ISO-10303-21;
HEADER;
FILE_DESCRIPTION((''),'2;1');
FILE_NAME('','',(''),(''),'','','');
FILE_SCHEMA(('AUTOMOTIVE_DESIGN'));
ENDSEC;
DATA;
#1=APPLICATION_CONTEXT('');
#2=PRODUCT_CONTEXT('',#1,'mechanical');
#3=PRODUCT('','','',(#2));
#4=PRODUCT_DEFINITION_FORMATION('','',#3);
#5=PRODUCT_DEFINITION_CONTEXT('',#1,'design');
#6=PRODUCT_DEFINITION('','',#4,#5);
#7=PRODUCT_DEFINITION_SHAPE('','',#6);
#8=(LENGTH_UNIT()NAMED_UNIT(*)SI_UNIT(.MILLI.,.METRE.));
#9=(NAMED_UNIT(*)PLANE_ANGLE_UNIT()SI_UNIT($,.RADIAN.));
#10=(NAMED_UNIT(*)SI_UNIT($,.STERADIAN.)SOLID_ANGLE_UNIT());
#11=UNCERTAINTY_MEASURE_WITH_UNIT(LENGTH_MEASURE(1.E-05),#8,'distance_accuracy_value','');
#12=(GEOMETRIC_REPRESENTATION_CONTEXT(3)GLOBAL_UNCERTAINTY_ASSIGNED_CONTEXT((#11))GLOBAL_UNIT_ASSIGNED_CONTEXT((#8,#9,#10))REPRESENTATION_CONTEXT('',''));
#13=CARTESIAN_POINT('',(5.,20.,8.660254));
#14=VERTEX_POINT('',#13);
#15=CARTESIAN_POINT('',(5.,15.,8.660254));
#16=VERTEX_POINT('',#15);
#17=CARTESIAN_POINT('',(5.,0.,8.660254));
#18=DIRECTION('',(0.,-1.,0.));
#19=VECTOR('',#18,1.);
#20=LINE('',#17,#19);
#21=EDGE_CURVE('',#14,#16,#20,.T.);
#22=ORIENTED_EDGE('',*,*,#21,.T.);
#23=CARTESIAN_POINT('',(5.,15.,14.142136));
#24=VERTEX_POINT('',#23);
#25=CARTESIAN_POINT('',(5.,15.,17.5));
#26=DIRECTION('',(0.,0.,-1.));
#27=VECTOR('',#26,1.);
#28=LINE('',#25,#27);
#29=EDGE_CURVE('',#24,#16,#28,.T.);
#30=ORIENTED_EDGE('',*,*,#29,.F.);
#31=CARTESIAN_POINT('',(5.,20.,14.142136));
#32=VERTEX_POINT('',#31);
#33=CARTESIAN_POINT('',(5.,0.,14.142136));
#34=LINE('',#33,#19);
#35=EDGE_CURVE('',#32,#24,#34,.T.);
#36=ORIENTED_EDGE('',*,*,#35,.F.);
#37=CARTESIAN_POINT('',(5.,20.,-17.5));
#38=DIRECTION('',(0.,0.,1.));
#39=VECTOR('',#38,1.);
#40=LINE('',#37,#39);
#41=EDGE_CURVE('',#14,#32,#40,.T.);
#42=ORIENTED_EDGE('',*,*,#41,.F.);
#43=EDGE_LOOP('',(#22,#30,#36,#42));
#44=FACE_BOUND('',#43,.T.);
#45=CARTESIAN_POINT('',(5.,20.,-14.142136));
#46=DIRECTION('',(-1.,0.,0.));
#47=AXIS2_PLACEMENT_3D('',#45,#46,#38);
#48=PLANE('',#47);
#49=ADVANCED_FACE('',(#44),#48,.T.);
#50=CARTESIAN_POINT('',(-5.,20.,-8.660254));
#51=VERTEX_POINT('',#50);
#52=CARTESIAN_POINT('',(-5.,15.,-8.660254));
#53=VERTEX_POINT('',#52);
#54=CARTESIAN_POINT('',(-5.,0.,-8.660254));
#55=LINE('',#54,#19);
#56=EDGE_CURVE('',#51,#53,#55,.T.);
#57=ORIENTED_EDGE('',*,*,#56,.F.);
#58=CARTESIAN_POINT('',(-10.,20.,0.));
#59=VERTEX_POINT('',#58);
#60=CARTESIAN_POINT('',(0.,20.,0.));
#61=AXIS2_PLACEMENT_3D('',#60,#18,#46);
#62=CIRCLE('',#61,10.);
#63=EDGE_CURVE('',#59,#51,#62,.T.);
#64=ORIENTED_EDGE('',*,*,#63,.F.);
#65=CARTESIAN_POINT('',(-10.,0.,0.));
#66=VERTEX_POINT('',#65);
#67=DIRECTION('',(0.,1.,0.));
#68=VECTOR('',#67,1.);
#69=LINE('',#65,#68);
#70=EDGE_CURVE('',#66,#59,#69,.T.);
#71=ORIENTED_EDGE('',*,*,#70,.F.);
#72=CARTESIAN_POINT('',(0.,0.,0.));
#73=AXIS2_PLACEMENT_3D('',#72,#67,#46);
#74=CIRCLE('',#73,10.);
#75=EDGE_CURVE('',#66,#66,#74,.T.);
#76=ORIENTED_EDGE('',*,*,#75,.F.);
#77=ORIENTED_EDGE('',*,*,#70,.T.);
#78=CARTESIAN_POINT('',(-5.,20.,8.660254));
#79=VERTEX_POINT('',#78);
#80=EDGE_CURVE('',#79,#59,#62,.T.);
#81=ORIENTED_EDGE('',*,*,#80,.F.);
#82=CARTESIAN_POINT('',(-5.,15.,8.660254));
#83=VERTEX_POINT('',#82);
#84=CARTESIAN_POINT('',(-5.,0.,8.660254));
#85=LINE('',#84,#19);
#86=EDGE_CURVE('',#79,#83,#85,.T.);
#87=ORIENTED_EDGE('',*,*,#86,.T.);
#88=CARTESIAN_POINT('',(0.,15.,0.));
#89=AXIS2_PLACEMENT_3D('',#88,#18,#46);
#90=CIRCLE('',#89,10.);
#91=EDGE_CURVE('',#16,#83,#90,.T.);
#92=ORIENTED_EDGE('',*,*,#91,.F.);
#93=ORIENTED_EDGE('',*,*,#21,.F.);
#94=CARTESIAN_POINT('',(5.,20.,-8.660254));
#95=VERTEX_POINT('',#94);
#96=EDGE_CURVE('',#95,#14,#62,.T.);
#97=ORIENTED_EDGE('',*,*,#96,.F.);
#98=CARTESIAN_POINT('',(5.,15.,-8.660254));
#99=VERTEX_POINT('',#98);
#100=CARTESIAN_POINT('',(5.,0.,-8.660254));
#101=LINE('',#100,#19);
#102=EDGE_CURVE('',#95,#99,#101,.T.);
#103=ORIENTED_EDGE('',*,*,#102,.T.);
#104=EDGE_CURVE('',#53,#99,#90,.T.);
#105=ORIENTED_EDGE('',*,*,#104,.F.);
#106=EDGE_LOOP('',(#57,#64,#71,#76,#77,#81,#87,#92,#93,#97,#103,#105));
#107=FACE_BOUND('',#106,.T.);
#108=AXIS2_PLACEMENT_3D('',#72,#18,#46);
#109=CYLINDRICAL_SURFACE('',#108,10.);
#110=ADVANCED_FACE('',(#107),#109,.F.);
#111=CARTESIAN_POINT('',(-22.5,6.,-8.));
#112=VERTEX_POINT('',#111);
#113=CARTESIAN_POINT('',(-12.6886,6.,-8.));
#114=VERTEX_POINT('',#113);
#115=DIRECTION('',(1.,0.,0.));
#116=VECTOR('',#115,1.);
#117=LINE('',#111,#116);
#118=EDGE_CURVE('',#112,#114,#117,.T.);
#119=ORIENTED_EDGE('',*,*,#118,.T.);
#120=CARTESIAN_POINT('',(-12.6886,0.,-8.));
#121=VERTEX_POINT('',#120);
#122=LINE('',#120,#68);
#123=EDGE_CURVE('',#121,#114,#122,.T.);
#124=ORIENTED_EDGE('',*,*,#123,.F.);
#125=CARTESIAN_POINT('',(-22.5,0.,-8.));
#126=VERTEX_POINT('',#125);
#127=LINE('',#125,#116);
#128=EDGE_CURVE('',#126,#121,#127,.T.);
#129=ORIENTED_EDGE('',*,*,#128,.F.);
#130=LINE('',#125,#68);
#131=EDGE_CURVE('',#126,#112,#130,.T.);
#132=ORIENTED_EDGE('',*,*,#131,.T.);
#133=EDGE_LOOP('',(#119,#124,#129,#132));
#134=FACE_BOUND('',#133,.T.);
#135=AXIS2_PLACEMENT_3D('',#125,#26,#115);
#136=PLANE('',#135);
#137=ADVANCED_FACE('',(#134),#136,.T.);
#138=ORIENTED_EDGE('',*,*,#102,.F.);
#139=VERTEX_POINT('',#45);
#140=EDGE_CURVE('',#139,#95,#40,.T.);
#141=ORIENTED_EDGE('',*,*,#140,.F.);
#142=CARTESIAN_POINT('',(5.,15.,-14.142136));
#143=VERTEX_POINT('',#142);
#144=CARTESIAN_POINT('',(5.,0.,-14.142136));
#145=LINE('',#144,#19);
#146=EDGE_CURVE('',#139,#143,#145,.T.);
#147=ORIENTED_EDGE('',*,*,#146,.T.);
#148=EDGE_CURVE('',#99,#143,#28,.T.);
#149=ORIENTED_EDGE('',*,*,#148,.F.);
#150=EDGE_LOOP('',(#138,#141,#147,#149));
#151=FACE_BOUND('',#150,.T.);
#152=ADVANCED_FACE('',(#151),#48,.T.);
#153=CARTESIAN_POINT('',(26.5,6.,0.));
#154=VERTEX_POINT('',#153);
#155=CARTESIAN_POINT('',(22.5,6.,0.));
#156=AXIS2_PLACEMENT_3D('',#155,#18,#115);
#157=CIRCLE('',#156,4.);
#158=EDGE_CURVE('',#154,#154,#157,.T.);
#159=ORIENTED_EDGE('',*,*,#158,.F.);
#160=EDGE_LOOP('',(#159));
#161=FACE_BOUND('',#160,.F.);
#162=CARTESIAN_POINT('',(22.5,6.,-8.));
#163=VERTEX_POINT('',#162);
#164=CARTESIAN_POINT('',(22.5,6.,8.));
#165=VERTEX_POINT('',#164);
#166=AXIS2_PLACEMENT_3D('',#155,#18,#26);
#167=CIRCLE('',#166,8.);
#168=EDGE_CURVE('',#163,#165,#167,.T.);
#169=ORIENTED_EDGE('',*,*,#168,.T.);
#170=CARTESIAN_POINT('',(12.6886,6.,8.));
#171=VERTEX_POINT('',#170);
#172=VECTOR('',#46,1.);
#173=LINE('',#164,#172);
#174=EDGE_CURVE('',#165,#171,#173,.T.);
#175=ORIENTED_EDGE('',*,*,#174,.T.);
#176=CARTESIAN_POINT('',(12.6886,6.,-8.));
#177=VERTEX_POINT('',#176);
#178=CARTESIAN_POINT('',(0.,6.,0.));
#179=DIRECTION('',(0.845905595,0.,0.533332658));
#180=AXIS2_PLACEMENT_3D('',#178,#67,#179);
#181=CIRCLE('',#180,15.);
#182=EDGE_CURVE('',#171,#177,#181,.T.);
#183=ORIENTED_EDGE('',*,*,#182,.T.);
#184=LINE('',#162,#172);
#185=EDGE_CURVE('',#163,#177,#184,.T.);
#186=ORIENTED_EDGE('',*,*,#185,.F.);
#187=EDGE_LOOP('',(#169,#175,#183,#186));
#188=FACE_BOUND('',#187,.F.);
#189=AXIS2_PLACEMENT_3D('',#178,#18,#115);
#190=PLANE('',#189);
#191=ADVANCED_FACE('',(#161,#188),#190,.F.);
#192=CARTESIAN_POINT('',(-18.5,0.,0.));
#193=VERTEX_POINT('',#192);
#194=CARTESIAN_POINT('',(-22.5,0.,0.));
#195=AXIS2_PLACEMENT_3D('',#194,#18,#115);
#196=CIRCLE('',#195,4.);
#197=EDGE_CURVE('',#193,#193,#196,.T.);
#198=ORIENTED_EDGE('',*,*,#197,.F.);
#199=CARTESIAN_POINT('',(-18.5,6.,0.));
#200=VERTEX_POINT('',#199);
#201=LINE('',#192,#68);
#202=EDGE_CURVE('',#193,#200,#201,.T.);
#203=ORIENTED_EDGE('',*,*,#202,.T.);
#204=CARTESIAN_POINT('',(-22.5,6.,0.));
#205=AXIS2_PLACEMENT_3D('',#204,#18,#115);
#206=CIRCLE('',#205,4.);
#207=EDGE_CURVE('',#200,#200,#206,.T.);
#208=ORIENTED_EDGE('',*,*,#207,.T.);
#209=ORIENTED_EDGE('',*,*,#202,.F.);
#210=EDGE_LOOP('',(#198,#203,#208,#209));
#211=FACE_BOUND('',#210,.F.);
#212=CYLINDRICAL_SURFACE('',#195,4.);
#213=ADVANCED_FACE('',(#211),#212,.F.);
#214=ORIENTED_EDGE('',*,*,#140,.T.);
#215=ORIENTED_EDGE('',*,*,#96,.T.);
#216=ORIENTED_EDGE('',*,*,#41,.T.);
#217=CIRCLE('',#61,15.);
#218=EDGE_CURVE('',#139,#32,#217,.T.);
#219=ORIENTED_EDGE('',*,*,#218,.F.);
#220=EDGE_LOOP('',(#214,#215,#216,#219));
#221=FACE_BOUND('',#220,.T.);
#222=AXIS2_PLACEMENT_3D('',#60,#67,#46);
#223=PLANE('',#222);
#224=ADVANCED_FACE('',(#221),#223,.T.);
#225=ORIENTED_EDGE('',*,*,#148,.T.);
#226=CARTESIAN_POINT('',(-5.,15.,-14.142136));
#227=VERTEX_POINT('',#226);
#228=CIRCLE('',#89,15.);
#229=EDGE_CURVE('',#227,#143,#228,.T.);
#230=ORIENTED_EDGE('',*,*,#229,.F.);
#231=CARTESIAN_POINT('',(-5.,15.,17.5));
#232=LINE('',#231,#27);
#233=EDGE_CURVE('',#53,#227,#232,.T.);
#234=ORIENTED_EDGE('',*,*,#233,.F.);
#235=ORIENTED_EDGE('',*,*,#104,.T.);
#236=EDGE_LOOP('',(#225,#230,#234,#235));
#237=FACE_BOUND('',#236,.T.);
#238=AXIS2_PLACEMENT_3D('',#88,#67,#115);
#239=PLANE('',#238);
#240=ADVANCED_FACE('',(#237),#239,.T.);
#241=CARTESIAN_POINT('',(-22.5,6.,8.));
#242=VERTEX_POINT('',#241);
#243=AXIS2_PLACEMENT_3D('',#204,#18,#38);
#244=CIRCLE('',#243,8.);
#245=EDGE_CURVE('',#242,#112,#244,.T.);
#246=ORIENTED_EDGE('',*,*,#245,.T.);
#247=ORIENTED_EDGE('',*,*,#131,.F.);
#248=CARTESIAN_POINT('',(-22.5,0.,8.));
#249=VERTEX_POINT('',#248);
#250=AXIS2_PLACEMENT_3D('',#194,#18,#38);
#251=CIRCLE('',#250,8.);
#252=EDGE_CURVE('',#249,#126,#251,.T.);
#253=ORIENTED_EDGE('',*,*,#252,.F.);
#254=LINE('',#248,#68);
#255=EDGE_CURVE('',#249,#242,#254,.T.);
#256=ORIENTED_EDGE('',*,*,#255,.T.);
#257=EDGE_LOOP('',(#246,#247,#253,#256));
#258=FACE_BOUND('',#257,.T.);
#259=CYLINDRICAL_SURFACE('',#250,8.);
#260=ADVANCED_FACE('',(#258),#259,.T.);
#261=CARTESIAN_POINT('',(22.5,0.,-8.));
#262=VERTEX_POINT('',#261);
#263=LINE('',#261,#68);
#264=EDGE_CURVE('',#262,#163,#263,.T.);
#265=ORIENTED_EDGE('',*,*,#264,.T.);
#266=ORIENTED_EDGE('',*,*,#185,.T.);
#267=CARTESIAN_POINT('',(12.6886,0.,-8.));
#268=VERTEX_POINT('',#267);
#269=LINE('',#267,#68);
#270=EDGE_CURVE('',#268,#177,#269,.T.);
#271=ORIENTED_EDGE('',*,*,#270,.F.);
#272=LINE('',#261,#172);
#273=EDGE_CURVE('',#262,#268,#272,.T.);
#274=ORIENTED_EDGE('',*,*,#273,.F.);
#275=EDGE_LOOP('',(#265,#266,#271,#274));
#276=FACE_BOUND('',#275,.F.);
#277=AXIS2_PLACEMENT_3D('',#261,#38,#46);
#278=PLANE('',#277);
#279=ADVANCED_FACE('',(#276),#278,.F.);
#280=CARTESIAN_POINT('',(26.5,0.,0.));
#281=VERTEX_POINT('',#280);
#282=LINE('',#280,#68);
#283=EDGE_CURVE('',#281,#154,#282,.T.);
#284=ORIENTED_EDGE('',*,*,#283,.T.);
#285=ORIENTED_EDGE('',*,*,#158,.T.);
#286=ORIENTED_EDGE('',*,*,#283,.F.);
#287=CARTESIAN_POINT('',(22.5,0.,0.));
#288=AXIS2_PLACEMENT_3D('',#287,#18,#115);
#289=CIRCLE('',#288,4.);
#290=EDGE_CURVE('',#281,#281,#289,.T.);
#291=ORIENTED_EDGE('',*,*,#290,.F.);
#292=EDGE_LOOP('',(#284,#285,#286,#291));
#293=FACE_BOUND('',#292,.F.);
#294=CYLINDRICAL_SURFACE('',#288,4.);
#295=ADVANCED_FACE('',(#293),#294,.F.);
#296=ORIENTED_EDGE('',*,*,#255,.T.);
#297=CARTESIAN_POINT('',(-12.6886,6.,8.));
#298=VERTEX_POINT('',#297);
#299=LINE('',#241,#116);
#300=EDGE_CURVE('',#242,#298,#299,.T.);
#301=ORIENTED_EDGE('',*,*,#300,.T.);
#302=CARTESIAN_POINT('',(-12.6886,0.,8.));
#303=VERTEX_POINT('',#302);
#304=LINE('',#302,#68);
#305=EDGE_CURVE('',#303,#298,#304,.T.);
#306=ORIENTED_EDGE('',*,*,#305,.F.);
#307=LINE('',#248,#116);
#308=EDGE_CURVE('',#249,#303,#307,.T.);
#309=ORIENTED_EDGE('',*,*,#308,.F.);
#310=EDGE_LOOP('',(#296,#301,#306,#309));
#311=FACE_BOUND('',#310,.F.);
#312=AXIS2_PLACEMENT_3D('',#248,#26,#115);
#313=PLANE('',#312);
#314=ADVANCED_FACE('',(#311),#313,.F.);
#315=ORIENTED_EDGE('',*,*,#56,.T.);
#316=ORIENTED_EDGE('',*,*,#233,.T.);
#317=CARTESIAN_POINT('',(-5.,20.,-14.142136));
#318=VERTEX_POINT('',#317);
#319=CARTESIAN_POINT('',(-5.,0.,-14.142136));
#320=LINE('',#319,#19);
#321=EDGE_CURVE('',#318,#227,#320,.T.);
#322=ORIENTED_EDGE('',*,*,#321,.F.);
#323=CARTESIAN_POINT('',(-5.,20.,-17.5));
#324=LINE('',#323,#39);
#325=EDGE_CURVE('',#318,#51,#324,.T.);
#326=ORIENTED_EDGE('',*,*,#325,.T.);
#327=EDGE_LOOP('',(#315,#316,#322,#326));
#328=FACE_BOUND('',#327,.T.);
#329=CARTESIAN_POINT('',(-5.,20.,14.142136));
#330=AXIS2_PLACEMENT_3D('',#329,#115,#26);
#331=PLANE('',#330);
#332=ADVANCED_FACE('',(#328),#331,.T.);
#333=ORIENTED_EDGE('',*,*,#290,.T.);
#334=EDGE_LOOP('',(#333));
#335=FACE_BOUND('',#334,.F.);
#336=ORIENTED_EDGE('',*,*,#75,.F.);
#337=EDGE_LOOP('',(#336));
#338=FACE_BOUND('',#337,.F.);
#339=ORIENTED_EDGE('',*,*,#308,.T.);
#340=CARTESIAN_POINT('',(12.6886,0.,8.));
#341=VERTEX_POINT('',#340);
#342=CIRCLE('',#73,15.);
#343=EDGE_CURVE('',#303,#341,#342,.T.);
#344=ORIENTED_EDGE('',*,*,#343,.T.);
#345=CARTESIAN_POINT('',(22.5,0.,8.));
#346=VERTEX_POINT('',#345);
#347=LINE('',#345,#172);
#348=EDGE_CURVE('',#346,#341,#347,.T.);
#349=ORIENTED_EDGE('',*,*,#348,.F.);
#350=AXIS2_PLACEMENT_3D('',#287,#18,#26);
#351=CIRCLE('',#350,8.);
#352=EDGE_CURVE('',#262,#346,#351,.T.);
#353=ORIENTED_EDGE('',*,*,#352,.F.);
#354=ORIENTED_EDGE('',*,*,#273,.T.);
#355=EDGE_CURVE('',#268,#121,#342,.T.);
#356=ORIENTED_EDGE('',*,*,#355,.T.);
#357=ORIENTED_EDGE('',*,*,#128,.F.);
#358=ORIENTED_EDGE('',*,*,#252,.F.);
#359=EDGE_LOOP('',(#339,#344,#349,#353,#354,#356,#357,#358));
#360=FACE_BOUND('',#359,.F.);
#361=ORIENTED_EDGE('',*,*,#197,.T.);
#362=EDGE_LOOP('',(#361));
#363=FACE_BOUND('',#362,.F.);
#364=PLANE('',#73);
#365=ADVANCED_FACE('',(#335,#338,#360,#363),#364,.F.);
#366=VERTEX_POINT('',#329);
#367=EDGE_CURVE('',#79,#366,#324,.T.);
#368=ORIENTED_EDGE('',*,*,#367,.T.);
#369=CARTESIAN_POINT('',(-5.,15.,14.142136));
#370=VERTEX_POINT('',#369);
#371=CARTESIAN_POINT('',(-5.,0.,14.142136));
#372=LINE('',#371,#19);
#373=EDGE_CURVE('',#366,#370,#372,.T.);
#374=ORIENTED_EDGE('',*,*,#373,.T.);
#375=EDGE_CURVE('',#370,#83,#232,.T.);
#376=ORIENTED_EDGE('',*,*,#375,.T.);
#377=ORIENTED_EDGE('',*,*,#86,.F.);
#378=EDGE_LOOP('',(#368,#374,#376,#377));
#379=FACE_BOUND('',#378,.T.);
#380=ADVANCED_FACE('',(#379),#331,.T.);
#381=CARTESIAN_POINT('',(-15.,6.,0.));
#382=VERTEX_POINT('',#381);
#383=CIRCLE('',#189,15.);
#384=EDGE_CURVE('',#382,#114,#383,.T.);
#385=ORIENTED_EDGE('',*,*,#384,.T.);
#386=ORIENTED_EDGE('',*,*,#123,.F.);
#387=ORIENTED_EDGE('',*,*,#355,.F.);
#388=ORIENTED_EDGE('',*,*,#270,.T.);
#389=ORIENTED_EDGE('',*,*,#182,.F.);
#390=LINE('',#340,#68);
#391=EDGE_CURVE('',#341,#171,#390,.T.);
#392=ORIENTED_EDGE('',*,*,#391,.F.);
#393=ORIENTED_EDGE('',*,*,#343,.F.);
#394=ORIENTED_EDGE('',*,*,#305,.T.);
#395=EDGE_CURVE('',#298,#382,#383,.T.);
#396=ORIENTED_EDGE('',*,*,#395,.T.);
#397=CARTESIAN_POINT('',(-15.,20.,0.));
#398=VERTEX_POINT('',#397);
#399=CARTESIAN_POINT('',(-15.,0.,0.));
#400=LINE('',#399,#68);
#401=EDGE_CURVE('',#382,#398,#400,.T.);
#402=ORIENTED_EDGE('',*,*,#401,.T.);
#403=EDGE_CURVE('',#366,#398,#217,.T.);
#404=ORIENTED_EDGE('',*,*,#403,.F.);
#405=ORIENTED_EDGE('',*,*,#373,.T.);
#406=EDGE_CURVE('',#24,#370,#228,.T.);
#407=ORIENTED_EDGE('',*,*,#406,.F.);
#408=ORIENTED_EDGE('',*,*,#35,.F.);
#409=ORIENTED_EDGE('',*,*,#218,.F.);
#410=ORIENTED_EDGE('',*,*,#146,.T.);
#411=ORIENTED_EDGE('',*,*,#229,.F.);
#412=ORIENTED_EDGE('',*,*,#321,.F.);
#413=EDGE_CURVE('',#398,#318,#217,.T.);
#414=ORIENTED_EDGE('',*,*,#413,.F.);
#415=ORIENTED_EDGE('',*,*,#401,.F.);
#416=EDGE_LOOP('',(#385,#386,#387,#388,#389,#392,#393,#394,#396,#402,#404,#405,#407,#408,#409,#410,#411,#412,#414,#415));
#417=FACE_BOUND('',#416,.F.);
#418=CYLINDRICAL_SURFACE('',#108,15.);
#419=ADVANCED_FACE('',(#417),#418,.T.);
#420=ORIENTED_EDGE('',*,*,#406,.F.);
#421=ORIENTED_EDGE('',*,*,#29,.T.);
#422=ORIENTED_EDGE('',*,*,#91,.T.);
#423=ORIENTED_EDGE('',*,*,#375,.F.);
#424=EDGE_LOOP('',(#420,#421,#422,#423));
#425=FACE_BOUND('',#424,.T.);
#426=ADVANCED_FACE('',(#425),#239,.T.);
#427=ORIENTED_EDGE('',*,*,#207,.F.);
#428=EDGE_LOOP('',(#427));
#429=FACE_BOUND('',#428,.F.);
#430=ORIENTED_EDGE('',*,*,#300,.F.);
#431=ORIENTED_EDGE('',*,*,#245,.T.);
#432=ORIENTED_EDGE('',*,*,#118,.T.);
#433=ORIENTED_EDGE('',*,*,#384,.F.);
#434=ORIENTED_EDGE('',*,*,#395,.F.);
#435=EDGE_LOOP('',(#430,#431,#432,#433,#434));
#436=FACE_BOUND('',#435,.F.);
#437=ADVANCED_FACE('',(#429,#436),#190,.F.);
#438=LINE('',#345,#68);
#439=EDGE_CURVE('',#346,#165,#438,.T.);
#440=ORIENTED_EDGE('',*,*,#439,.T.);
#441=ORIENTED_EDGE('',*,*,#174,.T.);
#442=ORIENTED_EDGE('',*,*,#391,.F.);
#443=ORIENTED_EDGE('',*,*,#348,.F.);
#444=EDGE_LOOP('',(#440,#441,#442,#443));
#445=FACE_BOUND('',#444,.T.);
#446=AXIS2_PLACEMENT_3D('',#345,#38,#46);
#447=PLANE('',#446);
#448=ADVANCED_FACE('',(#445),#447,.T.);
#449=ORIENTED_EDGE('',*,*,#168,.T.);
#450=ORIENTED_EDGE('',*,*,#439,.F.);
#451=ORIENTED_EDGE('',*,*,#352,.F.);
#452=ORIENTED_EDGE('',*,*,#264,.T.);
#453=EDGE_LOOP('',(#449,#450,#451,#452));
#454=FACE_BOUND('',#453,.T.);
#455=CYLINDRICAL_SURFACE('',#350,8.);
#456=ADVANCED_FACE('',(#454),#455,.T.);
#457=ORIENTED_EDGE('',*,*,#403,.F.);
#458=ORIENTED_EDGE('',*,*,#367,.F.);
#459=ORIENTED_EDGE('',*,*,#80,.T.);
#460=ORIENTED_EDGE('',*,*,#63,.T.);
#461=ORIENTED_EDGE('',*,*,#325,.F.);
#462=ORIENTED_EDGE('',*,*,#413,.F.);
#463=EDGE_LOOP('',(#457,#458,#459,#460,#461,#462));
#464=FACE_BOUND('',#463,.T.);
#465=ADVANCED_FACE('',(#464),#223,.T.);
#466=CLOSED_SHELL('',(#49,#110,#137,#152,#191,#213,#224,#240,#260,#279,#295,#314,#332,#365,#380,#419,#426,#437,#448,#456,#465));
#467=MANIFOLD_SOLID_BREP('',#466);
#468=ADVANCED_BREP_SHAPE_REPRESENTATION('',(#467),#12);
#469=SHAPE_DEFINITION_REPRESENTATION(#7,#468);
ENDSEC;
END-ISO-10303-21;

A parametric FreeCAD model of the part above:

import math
import FreeCAD as App
import Part
import Sketcher

V = App.Vector

doc = App.newDocument("Part")
body = doc.addObject("PartDesign::Body", "Body")

# Sketch on XZ plane
sketch1 = body.newObject("Sketcher::SketchObject", "Sketch")
sketch1.AttachmentSupport = (doc.getObject("XZ_Plane"), [""])
sketch1.MapMode = "FlatFace"
sketch1.addGeometry([
    Part.Circle(V(0, 0, 0), V(0, 0, 1), 15),
    Part.Circle(V(0, 0, 0), V(0, 0, 1), 10),
], False)
sketch1.addConstraint([
    Sketcher.Constraint("Coincident", 0, 3, -1, 1),
    Sketcher.Constraint("Coincident", 1, 3, -1, 1),
    Sketcher.Constraint("Diameter", 0, 30.0),
    Sketcher.Constraint("Diameter", 1, 20.0),
])
pad1 = body.newObject("PartDesign::Pad", "Pad")
pad1.Profile = sketch1
pad1.Length = 20
pad1.Reversed = True

# Sketch on XZ plane
sketch2 = body.newObject("Sketcher::SketchObject", "Sketch001")
sketch2.AttachmentSupport = (doc.getObject("XZ_Plane"), [""])
sketch2.MapMode = "FlatFace"
sketch2.AttachmentOffset = App.Placement(V(0, 0, -20), App.Rotation())
sketch2.addGeometry([
    Part.LineSegment(V(5, -17.5, 0), V(-5, -17.5, 0)),
    Part.LineSegment(V(-5, -17.5, 0), V(-5, 17.5, 0)),
    Part.LineSegment(V(-5, 17.5, 0), V(5, 17.5, 0)),
    Part.LineSegment(V(5, 17.5, 0), V(5, -17.5, 0)),
], False)
sketch2.addConstraint([
    Sketcher.Constraint("Coincident", 0, 2, 1, 1),
    Sketcher.Constraint("Coincident", 1, 2, 2, 1),
    Sketcher.Constraint("Coincident", 2, 2, 3, 1),
    Sketcher.Constraint("Coincident", 3, 2, 0, 1),
    Sketcher.Constraint("Horizontal", 0),
    Sketcher.Constraint("Vertical", 1),
    Sketcher.Constraint("Horizontal", 2),
    Sketcher.Constraint("Vertical", 3),
    Sketcher.Constraint("Symmetric", 0, 2, 2, 2, -1, 1),
    Sketcher.Constraint("DistanceX", 0, 2, 0, 1, 10.0),
    Sketcher.Constraint("DistanceY", 1, 1, 1, 2, 35.0),
])
pocket1 = body.newObject("PartDesign::Pocket", "Pocket")
pocket1.Profile = sketch2
pocket1.Length = 5
pocket1.Reversed = True

# Sketch on XZ plane
sketch3 = body.newObject("Sketcher::SketchObject", "Sketch002")
sketch3.AttachmentSupport = (doc.getObject("XZ_Plane"), [""])
sketch3.MapMode = "FlatFace"
sketch3.addGeometry([
    Part.LineSegment(V(22.5, 8, 0), V(12.6886, 8, 0)),  # 0
    Part.ArcOfCircle(Part.Circle(V(0, 0, 0), V(0, 0, 1), 15), math.radians(-32.230907), math.radians(32.230907)),  # 1
    Part.LineSegment(V(12.6886, -8, 0), V(22.5, -8, 0)),  # 2
    Part.ArcOfCircle(Part.Circle(V(22.5, 0, 0), V(0, 0, 1), 8), math.radians(-90), math.radians(90)),  # 3
    Part.Circle(V(22.5, 0, 0), V(0, 0, 1), 4),  # 4
    Part.ArcOfCircle(Part.Circle(V(0, 0, 0), V(0, 0, 1), 15), math.radians(147.769093), math.radians(212.230907)),  # 5
    Part.LineSegment(V(-12.6886, 8, 0), V(-22.5, 8, 0)),  # 6
    Part.ArcOfCircle(Part.Circle(V(-22.5, 0, 0), V(0, 0, 1), 8), math.radians(90), math.radians(270)),  # 7
    Part.LineSegment(V(-22.5, -8, 0), V(-12.6886, -8, 0)),  # 8
    Part.Circle(V(-22.5, 0, 0), V(0, 0, 1), 4),  # 9
], False)
sketch3.addConstraint([
    Sketcher.Constraint("Coincident", 0, 2, 1, 2),
    Sketcher.Constraint("Coincident", 1, 1, 2, 1),
    Sketcher.Constraint("Tangent", 2, 2, 3, 1),
    Sketcher.Constraint("Tangent", 3, 2, 0, 1),
    Sketcher.Constraint("Coincident", 5, 1, 6, 1),
    Sketcher.Constraint("Tangent", 6, 2, 7, 1),
    Sketcher.Constraint("Tangent", 7, 2, 8, 1),
    Sketcher.Constraint("Coincident", 8, 2, 5, 2),
    Sketcher.Constraint("Horizontal", 0),
    Sketcher.Constraint("Horizontal", 2),
    Sketcher.Constraint("Horizontal", 6),
    Sketcher.Constraint("Horizontal", 8),
    Sketcher.Constraint("Coincident", 1, 3, -1, 1),
    Sketcher.Constraint("Coincident", 5, 3, -1, 1),
    Sketcher.Constraint("Coincident", 4, 3, 3, 3),
    Sketcher.Constraint("Coincident", 9, 3, 7, 3),
    Sketcher.Constraint("Equal", 1, 5),
    Sketcher.Constraint("Equal", 3, 7),
    Sketcher.Constraint("Equal", 4, 9),
    Sketcher.Constraint("Symmetric", 3, 3, 7, 3, -1, 1),
    Sketcher.Constraint("PointOnObject", 3, 3, -1),
    Sketcher.Constraint("Diameter", 4, 8.0),
    Sketcher.Constraint("Radius", 3, 8.0),
    Sketcher.Constraint("Radius", 1, 15.0),
    Sketcher.Constraint("DistanceX", 7, 3, 3, 3, 45.0),
])
pad2 = body.newObject("PartDesign::Pad", "Pad001")
pad2.Profile = sketch3
pad2.Length = 6
pad2.Reversed = True

doc.recompute()
